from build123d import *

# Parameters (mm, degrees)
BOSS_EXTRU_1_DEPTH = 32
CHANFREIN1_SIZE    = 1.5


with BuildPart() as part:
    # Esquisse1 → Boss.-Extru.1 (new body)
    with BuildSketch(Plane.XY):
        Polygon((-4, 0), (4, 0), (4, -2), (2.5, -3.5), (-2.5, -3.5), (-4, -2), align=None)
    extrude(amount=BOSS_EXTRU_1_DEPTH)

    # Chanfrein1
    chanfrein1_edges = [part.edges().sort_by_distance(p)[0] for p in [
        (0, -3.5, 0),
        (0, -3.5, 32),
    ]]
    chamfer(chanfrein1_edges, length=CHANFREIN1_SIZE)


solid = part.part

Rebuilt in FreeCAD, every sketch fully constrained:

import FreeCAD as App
import Part
import Sketcher
Q = App.Units.Quantity


def edges_at(feature, points):
    """Names of the edges that pass closest to the given points."""
    edges = feature.Shape.Edges
    near = lambda p: min(range(len(edges)), key=lambda i: edges[i].distToShape(Part.Vertex(*p))[0])
    return sorted({f"Edge{near(p) + 1}" for p in points})

doc = App.newDocument("Part")
params = doc.addObject("Spreadsheet::Sheet", "Params")
for row, (alias, value) in enumerate([
    ("sketch1_width", "8 mm"),
    ("sketch1_width2", "5 mm"),
    ("sketch1_height", "2 mm"),
    ("pad1_length", "32 mm"),
    ("chamfer_size", "1.5 mm"),
], start=1):
    params.set(f"A{row}", alias)
    params.set(f"B{row}", "=" + value)
    params.setAlias(f"B{row}", alias)

body = doc.addObject("PartDesign::Body", "Body")

sketch1 = body.newObject("Sketcher::SketchObject", "Sketch")
sketch1.AttachmentSupport = (doc.getObject("XY_Plane"), [""])
sketch1.MapMode = "FlatFace"
sketch1.addGeometry(Part.LineSegment(App.Vector(4, 0, 0), App.Vector(-4, 0, 0)), False)
sketch1.addGeometry(Part.LineSegment(App.Vector(-4, 0, 0), App.Vector(-4, -2, 0)), False)
sketch1.addGeometry(Part.LineSegment(App.Vector(-4, -2, 0), App.Vector(-2.5, -3.5, 0)), False)
sketch1.addGeometry(Part.LineSegment(App.Vector(-2.5, -3.5, 0), App.Vector(2.5, -3.5, 0)), False)
sketch1.addGeometry(Part.LineSegment(App.Vector(2.5, -3.5, 0), App.Vector(4, -2, 0)), False)
sketch1.addGeometry(Part.LineSegment(App.Vector(4, -2, 0), App.Vector(4, 0, 0)), False)
sketch1.addConstraint(Sketcher.Constraint("Coincident", 0, 2, 1, 1))
sketch1.addConstraint(Sketcher.Constraint("Coincident", 1, 2, 2, 1))
sketch1.addConstraint(Sketcher.Constraint("Coincident", 2, 2, 3, 1))
sketch1.addConstraint(Sketcher.Constraint("Coincident", 3, 2, 4, 1))
sketch1.addConstraint(Sketcher.Constraint("Coincident", 4, 2, 5, 1))
sketch1.addConstraint(Sketcher.Constraint("Coincident", 5, 2, 0, 1))
sketch1.addConstraint(Sketcher.Constraint("Horizontal", 0))
sketch1.addConstraint(Sketcher.Constraint("Vertical", 1))
sketch1.addConstraint(Sketcher.Constraint("Horizontal", 3))
sketch1.addConstraint(Sketcher.Constraint("Vertical", 5))
sketch1.addConstraint(Sketcher.Constraint("Symmetric", 0, 2, 5, 2, -1, 1))
sketch1.addConstraint(Sketcher.Constraint("Perpendicular", 2, 4))
sketch1.addConstraint(Sketcher.Constraint("Horizontal", 1, 2, 4, 2))
sketch1.addConstraint(Sketcher.Constraint("Equal", 2, 4))
sketch1.addConstraint(Sketcher.Constraint("DistanceX", 0, 2, 0, 1, Q("8 mm")))
sketch1.addConstraint(Sketcher.Constraint("DistanceX", 3, 1, 3, 2, Q("5 mm")))
sketch1.addConstraint(Sketcher.Constraint("DistanceY", 1, 2, 1, 1, Q("2 mm")))
sketch1.setExpression("Constraints[14]", "Params.sketch1_width")
sketch1.setExpression("Constraints[15]", "Params.sketch1_width2")
sketch1.setExpression("Constraints[16]", "Params.sketch1_height")
pad1 = body.newObject("PartDesign::Pad", "Pad")
pad1.Profile = sketch1
pad1.setExpression("Length", "Params.pad1_length")
doc.recompute()

chamfer = body.newObject("PartDesign::Chamfer", "Chamfer")
chamfer.Base = (pad1, edges_at(pad1, [(0, -3.5, 0), (0, -3.5, 32)]))
chamfer.setExpression("Size", "Params.chamfer_size")

doc.recompute()
